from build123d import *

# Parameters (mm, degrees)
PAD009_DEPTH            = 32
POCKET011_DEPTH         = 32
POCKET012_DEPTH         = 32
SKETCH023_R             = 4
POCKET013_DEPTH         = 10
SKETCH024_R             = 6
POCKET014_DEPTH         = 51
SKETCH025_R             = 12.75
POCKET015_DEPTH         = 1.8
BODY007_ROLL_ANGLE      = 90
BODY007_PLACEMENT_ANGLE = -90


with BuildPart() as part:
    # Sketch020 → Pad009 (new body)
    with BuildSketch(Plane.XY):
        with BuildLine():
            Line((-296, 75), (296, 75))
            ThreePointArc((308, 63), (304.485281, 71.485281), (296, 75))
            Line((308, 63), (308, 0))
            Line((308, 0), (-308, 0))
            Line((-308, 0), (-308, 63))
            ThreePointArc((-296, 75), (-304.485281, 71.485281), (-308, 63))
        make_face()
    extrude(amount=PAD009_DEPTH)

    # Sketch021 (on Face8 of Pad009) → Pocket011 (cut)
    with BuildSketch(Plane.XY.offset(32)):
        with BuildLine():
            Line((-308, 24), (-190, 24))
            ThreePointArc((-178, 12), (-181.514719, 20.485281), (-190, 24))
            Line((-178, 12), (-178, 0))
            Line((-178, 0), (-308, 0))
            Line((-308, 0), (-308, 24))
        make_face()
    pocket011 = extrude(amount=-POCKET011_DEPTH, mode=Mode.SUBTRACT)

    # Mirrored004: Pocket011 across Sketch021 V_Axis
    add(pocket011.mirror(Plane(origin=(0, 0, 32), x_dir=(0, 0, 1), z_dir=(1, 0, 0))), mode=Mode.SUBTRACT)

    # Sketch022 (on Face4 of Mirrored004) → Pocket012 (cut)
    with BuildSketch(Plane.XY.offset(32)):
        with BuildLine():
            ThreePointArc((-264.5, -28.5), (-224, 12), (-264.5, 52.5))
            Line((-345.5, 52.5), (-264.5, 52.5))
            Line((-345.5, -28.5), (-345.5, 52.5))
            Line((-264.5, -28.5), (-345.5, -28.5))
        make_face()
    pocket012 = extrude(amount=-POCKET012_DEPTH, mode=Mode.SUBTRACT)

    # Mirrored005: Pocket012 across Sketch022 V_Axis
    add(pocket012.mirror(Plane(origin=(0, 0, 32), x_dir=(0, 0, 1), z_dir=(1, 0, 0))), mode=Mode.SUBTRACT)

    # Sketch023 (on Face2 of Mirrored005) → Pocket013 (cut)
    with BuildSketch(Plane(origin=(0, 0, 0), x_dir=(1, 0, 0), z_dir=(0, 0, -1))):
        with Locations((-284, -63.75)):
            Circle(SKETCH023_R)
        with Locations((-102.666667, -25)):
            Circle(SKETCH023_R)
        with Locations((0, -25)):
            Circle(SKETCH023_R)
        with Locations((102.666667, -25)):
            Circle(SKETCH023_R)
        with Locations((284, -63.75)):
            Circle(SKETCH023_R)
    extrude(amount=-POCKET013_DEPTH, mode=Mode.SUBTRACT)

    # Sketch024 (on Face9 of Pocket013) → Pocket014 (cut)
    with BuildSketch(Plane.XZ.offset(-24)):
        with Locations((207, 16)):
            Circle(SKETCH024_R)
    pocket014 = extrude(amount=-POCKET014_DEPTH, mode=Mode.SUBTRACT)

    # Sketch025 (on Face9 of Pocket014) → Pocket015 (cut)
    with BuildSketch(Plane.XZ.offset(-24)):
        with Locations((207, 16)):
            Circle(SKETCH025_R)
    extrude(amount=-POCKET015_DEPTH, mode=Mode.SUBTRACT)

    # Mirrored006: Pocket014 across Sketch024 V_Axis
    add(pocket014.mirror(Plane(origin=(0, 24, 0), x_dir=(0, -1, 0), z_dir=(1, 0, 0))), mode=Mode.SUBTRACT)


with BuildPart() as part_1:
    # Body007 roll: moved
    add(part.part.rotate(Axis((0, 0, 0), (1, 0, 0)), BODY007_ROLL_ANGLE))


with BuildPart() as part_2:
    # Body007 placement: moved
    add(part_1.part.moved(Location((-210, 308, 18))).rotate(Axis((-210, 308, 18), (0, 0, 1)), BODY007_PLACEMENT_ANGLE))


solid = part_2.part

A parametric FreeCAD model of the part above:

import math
import FreeCAD as App
import Part
import Sketcher
from FreeCAD import Vector

doc = App.newDocument("Part")
body = doc.addObject("PartDesign::Body", "Body")

sketch1 = body.newObject("Sketcher::SketchObject", "Sketch")
sketch1.AttachmentSupport = (doc.getObject("XY_Plane"), [""])
sketch1.MapMode = "FlatFace"
sketch1.addGeometry(Part.LineSegment(Vector(296, 75, 0), Vector(-296, 75, 0)), False)
sketch1.addGeometry(Part.ArcOfCircle(Part.Circle(Vector(-296, 63, 0), Vector(0, 0, 1), 12), math.radians(90), math.radians(180)), False)
sketch1.addGeometry(Part.LineSegment(Vector(-308, 63, 0), Vector(-308, 0, 0)), False)
sketch1.addGeometry(Part.LineSegment(Vector(-308, 0, 0), Vector(308, 0, 0)), False)
sketch1.addGeometry(Part.LineSegment(Vector(308, 0, 0), Vector(308, 63, 0)), False)
sketch1.addGeometry(Part.ArcOfCircle(Part.Circle(Vector(296, 63, 0), Vector(0, 0, 1), 12), math.radians(0), math.radians(90)), False)
sketch1.addConstraint(Sketcher.Constraint("Tangent", 0, 2, 1, 1))
sketch1.addConstraint(Sketcher.Constraint("Tangent", 1, 2, 2, 1))
sketch1.addConstraint(Sketcher.Constraint("Coincident", 2, 2, 3, 1))
sketch1.addConstraint(Sketcher.Constraint("Coincident", 3, 2, 4, 1))
sketch1.addConstraint(Sketcher.Constraint("Tangent", 4, 2, 5, 1))
sketch1.addConstraint(Sketcher.Constraint("Tangent", 5, 2, 0, 1))
sketch1.addConstraint(Sketcher.Constraint("Horizontal", 0))
sketch1.addConstraint(Sketcher.Constraint("Vertical", 2))
sketch1.addConstraint(Sketcher.Constraint("Horizontal", 3))
sketch1.addConstraint(Sketcher.Constraint("Vertical", 4))
sketch1.addConstraint(Sketcher.Constraint("Equal", 1, 5))
sketch1.addConstraint(Sketcher.Constraint("Symmetric", 2, 2, 3, 2, -1, 1))
sketch1.addConstraint(Sketcher.Constraint("Radius", 1, 12.000001))
sketch1.addConstraint(Sketcher.Constraint("DistanceX", 0, 2, 0, 1, 592.0))
sketch1.addConstraint(Sketcher.Constraint("DistanceY", 2, 2, 2, 1, 63.0))
pad1 = body.newObject("PartDesign::Pad", "Pad")
pad1.Profile = sketch1
pad1.Length = 32

sketch2 = body.newObject("Sketcher::SketchObject", "Sketch001")
sketch2.AttachmentSupport = (doc.getObject("XY_Plane"), [""])
sketch2.MapMode = "FlatFace"
sketch2.AttachmentOffset = App.Placement(Vector(0, 0, 32), App.Rotation())
sketch2.addGeometry(Part.LineSegment(Vector(-190, 24, 0), Vector(-308, 24, 0)), False)
sketch2.addGeometry(Part.LineSegment(Vector(-308, 24, 0), Vector(-308, 0, 0)), False)
sketch2.addGeometry(Part.LineSegment(Vector(-308, 0, 0), Vector(-178, 0, 0)), False)
sketch2.addGeometry(Part.LineSegment(Vector(-178, 0, 0), Vector(-178, 12, 0)), False)
sketch2.addGeometry(Part.ArcOfCircle(Part.Circle(Vector(-190, 12, 0), Vector(0, 0, 1), 12), math.radians(0), math.radians(90)), False)
sketch2.addConstraint(Sketcher.Constraint("Coincident", 0, 2, 1, 1))
sketch2.addConstraint(Sketcher.Constraint("Coincident", 1, 2, 2, 1))
sketch2.addConstraint(Sketcher.Constraint("Coincident", 2, 2, 3, 1))
sketch2.addConstraint(Sketcher.Constraint("Tangent", 3, 2, 4, 1))
sketch2.addConstraint(Sketcher.Constraint("Tangent", 4, 2, 0, 1))
sketch2.addConstraint(Sketcher.Constraint("Horizontal", 0))
sketch2.addConstraint(Sketcher.Constraint("Vertical", 1))
sketch2.addConstraint(Sketcher.Constraint("Horizontal", 2))
sketch2.addConstraint(Sketcher.Constraint("Vertical", 3))
sketch2.addConstraint(Sketcher.Constraint("PointOnObject", 1, 2, -1))
sketch2.addConstraint(Sketcher.Constraint("Radius", 4, 12.000001))
sketch2.addConstraint(Sketcher.Constraint("DistanceX", 0, 2, 0, 1, 118.0))
sketch2.addConstraint(Sketcher.Constraint("DistanceY", 1, 2, 1, 1, 24.0))
sketch2.addConstraint(Sketcher.Constraint("DistanceX", 4, 3, -1, 1, 190.000001))
pocket1 = body.newObject("PartDesign::Pocket", "Pocket")
pocket1.Profile = sketch2
pocket1.Length = 32
doc.recompute()

mirrored = body.newObject("PartDesign::Mirrored", "Mirrored")
mirrored.Originals = [pocket1]
mirrored.MirrorPlane = (doc.getObject("YZ_Plane"), [""])
body.Tip = mirrored

sketch3 = body.newObject("Sketcher::SketchObject", "Sketch002")
sketch3.AttachmentSupport = (doc.getObject("XY_Plane"), [""])
sketch3.MapMode = "FlatFace"
sketch3.AttachmentOffset = App.Placement(Vector(0, 0, 32), App.Rotation())
sketch3.addGeometry(Part.ArcOfCircle(Part.Circle(Vector(-264, 12, 0), Vector(0, 0, 1), 40), math.radians(-90), math.radians(90)), False)
sketch3.addGeometry(Part.LineSegment(Vector(-264, 52, 0), Vector(-346, 52, 0)), False)
sketch3.addGeometry(Part.LineSegment(Vector(-346, 52, 0), Vector(-346, -28, 0)), False)
sketch3.addGeometry(Part.LineSegment(Vector(-346, -28, 0), Vector(-264, -28, 0)), False)
sketch3.addConstraint(Sketcher.Constraint("Tangent", 0, 2, 1, 1))
sketch3.addConstraint(Sketcher.Constraint("Coincident", 1, 2, 2, 1))
sketch3.addConstraint(Sketcher.Constraint("Coincident", 2, 2, 3, 1))
sketch3.addConstraint(Sketcher.Constraint("Tangent", 3, 2, 0, 1))
sketch3.addConstraint(Sketcher.Constraint("Horizontal", 1))
sketch3.addConstraint(Sketcher.Constraint("Vertical", 2))
sketch3.addConstraint(Sketcher.Constraint("Horizontal", 3))
sketch3.addConstraint(Sketcher.Constraint("Equal", 3, 2))
sketch3.addConstraint(Sketcher.Constraint("Radius", 0, 40.5))
sketch3.addConstraint(Sketcher.Constraint("DistanceY", -1, 1, 0, 3, 12.0))
sketch3.addConstraint(Sketcher.Constraint("DistanceX", 0, 3, -1, 1, 264.5))
pocket2 = body.newObject("PartDesign::Pocket", "Pocket001")
pocket2.Profile = sketch3
pocket2.Length = 32
doc.recompute()

mirrored2 = body.newObject("PartDesign::Mirrored", "Mirrored001")
mirrored2.Originals = [pocket2]
mirrored2.MirrorPlane = (doc.getObject("YZ_Plane"), [""])
body.Tip = mirrored2

sketch4 = body.newObject("Sketcher::SketchObject", "Sketch003")
sketch4.AttachmentSupport = (doc.getObject("XY_Plane"), [""])
sketch4.MapMode = "FlatFace"
sketch4.addGeometry(Part.Circle(Vector(-284, 63.8, 0), Vector(0, 0, 1), 4), False)
sketch4.addGeometry(Part.Circle(Vector(-102.7, 25, 0), Vector(0, 0, 1), 4), False)
sketch4.addGeometry(Part.Circle(Vector(0, 25, 0), Vector(0, 0, 1), 4), False)
sketch4.addGeometry(Part.Circle(Vector(102.7, 25, 0), Vector(0, 0, 1), 4), False)
sketch4.addGeometry(Part.Circle(Vector(284, 63.8, 0), Vector(0, 0, 1), 4), False)
sketch4.addConstraint(Sketcher.Constraint("Equal", 0, 1))
sketch4.addConstraint(Sketcher.Constraint("Equal", 1, 2))
sketch4.addConstraint(Sketcher.Constraint("Equal", 2, 3))
sketch4.addConstraint(Sketcher.Constraint("Equal", 3, 4))
sketch4.addConstraint(Sketcher.Constraint("Symmetric", 1, 3, 3, 3, -2))
sketch4.addConstraint(Sketcher.Constraint("Symmetric", 0, 3, 4, 3, -2))
sketch4.addConstraint(Sketcher.Constraint("PointOnObject", 2, 3, -2))
sketch4.addConstraint(Sketcher.Constraint("Horizontal", 1, 3, 2, 3))
sketch4.addConstraint(Sketcher.Constraint("Diameter", 0, 8.0))
sketch4.addConstraint(Sketcher.Constraint("DistanceX", 0, 3, -1, 1, 284.0))
sketch4.addConstraint(Sketcher.Constraint("DistanceY", -1, 1, 1, 3, 25.0))
sketch4.addConstraint(Sketcher.Constraint("DistanceY", -1, 1, 0, 3, 63.75))
sketch4.addConstraint(Sketcher.Constraint("DistanceX", 1, 3, -1, 1, 102.666667))
pocket3 = body.newObject("PartDesign::Pocket", "Pocket002")
pocket3.Profile = sketch4
pocket3.Length = 10
pocket3.Reversed = True

sketch5 = body.newObject("Sketcher::SketchObject", "Sketch004")
sketch5.AttachmentSupport = (doc.getObject("XZ_Plane"), [""])
sketch5.MapMode = "FlatFace"
sketch5.AttachmentOffset = App.Placement(Vector(0, 0, -24), App.Rotation())
sketch5.addGeometry(Part.Circle(Vector(207, 16, 0), Vector(0, 0, 1), 6), False)
sketch5.addConstraint(Sketcher.Constraint("Diameter", 0, 12.0))
sketch5.addConstraint(Sketcher.Constraint("DistanceX", -1, 1, 0, 3, 207.0))
sketch5.addConstraint(Sketcher.Constraint("DistanceY", -1, 1, 0, 3, 16.0))
pocket4 = body.newObject("PartDesign::Pocket", "Pocket003")
pocket4.Profile = sketch5
pocket4.Length = 51

sketch6 = body.newObject("Sketcher::SketchObject", "Sketch005")
sketch6.AttachmentSupport = (doc.getObject("XZ_Plane"), [""])
sketch6.MapMode = "FlatFace"
sketch6.AttachmentOffset = App.Placement(Vector(0, 0, -24), App.Rotation())
sketch6.addGeometry(Part.Circle(Vector(207, 16, 0), Vector(0, 0, 1), 13), False)
sketch6.addConstraint(Sketcher.Constraint("Diameter", 0, 25.5))
sketch6.addConstraint(Sketcher.Constraint("DistanceX", -1, 1, 0, 3, 207.0))
sketch6.addConstraint(Sketcher.Constraint("DistanceY", -1, 1, 0, 3, 16.0))
pocket5 = body.newObject("PartDesign::Pocket", "Pocket004")
pocket5.Profile = sketch6
pocket5.Length = 1.8
doc.recompute()

mirrored3 = body.newObject("PartDesign::Mirrored", "Mirrored002")
mirrored3.Originals = [pocket4]
mirrored3.MirrorPlane = (doc.getObject("YZ_Plane"), [""])
body.Tip = mirrored3
body2 = doc.addObject("PartDesign::Body", "Body001")
doc.recompute()

body.Placement = App.Placement(Vector(0, 0, 0), App.Rotation(Vector(1, 0, 0), 90))
boolean = body2.newObject("PartDesign::Boolean", "Boolean")
boolean.Type = "Fuse"
boolean.addObjects([body])
body3 = doc.addObject("PartDesign::Body", "Body002")
doc.recompute()

body2.Placement = App.Placement(Vector(-210, 308, 18), App.Rotation(Vector(0, 0, 1), 270))
boolean2 = body3.newObject("PartDesign::Boolean", "Boolean001")
boolean2.Type = "Fuse"
boolean2.addObjects([body2])

doc.recompute()
